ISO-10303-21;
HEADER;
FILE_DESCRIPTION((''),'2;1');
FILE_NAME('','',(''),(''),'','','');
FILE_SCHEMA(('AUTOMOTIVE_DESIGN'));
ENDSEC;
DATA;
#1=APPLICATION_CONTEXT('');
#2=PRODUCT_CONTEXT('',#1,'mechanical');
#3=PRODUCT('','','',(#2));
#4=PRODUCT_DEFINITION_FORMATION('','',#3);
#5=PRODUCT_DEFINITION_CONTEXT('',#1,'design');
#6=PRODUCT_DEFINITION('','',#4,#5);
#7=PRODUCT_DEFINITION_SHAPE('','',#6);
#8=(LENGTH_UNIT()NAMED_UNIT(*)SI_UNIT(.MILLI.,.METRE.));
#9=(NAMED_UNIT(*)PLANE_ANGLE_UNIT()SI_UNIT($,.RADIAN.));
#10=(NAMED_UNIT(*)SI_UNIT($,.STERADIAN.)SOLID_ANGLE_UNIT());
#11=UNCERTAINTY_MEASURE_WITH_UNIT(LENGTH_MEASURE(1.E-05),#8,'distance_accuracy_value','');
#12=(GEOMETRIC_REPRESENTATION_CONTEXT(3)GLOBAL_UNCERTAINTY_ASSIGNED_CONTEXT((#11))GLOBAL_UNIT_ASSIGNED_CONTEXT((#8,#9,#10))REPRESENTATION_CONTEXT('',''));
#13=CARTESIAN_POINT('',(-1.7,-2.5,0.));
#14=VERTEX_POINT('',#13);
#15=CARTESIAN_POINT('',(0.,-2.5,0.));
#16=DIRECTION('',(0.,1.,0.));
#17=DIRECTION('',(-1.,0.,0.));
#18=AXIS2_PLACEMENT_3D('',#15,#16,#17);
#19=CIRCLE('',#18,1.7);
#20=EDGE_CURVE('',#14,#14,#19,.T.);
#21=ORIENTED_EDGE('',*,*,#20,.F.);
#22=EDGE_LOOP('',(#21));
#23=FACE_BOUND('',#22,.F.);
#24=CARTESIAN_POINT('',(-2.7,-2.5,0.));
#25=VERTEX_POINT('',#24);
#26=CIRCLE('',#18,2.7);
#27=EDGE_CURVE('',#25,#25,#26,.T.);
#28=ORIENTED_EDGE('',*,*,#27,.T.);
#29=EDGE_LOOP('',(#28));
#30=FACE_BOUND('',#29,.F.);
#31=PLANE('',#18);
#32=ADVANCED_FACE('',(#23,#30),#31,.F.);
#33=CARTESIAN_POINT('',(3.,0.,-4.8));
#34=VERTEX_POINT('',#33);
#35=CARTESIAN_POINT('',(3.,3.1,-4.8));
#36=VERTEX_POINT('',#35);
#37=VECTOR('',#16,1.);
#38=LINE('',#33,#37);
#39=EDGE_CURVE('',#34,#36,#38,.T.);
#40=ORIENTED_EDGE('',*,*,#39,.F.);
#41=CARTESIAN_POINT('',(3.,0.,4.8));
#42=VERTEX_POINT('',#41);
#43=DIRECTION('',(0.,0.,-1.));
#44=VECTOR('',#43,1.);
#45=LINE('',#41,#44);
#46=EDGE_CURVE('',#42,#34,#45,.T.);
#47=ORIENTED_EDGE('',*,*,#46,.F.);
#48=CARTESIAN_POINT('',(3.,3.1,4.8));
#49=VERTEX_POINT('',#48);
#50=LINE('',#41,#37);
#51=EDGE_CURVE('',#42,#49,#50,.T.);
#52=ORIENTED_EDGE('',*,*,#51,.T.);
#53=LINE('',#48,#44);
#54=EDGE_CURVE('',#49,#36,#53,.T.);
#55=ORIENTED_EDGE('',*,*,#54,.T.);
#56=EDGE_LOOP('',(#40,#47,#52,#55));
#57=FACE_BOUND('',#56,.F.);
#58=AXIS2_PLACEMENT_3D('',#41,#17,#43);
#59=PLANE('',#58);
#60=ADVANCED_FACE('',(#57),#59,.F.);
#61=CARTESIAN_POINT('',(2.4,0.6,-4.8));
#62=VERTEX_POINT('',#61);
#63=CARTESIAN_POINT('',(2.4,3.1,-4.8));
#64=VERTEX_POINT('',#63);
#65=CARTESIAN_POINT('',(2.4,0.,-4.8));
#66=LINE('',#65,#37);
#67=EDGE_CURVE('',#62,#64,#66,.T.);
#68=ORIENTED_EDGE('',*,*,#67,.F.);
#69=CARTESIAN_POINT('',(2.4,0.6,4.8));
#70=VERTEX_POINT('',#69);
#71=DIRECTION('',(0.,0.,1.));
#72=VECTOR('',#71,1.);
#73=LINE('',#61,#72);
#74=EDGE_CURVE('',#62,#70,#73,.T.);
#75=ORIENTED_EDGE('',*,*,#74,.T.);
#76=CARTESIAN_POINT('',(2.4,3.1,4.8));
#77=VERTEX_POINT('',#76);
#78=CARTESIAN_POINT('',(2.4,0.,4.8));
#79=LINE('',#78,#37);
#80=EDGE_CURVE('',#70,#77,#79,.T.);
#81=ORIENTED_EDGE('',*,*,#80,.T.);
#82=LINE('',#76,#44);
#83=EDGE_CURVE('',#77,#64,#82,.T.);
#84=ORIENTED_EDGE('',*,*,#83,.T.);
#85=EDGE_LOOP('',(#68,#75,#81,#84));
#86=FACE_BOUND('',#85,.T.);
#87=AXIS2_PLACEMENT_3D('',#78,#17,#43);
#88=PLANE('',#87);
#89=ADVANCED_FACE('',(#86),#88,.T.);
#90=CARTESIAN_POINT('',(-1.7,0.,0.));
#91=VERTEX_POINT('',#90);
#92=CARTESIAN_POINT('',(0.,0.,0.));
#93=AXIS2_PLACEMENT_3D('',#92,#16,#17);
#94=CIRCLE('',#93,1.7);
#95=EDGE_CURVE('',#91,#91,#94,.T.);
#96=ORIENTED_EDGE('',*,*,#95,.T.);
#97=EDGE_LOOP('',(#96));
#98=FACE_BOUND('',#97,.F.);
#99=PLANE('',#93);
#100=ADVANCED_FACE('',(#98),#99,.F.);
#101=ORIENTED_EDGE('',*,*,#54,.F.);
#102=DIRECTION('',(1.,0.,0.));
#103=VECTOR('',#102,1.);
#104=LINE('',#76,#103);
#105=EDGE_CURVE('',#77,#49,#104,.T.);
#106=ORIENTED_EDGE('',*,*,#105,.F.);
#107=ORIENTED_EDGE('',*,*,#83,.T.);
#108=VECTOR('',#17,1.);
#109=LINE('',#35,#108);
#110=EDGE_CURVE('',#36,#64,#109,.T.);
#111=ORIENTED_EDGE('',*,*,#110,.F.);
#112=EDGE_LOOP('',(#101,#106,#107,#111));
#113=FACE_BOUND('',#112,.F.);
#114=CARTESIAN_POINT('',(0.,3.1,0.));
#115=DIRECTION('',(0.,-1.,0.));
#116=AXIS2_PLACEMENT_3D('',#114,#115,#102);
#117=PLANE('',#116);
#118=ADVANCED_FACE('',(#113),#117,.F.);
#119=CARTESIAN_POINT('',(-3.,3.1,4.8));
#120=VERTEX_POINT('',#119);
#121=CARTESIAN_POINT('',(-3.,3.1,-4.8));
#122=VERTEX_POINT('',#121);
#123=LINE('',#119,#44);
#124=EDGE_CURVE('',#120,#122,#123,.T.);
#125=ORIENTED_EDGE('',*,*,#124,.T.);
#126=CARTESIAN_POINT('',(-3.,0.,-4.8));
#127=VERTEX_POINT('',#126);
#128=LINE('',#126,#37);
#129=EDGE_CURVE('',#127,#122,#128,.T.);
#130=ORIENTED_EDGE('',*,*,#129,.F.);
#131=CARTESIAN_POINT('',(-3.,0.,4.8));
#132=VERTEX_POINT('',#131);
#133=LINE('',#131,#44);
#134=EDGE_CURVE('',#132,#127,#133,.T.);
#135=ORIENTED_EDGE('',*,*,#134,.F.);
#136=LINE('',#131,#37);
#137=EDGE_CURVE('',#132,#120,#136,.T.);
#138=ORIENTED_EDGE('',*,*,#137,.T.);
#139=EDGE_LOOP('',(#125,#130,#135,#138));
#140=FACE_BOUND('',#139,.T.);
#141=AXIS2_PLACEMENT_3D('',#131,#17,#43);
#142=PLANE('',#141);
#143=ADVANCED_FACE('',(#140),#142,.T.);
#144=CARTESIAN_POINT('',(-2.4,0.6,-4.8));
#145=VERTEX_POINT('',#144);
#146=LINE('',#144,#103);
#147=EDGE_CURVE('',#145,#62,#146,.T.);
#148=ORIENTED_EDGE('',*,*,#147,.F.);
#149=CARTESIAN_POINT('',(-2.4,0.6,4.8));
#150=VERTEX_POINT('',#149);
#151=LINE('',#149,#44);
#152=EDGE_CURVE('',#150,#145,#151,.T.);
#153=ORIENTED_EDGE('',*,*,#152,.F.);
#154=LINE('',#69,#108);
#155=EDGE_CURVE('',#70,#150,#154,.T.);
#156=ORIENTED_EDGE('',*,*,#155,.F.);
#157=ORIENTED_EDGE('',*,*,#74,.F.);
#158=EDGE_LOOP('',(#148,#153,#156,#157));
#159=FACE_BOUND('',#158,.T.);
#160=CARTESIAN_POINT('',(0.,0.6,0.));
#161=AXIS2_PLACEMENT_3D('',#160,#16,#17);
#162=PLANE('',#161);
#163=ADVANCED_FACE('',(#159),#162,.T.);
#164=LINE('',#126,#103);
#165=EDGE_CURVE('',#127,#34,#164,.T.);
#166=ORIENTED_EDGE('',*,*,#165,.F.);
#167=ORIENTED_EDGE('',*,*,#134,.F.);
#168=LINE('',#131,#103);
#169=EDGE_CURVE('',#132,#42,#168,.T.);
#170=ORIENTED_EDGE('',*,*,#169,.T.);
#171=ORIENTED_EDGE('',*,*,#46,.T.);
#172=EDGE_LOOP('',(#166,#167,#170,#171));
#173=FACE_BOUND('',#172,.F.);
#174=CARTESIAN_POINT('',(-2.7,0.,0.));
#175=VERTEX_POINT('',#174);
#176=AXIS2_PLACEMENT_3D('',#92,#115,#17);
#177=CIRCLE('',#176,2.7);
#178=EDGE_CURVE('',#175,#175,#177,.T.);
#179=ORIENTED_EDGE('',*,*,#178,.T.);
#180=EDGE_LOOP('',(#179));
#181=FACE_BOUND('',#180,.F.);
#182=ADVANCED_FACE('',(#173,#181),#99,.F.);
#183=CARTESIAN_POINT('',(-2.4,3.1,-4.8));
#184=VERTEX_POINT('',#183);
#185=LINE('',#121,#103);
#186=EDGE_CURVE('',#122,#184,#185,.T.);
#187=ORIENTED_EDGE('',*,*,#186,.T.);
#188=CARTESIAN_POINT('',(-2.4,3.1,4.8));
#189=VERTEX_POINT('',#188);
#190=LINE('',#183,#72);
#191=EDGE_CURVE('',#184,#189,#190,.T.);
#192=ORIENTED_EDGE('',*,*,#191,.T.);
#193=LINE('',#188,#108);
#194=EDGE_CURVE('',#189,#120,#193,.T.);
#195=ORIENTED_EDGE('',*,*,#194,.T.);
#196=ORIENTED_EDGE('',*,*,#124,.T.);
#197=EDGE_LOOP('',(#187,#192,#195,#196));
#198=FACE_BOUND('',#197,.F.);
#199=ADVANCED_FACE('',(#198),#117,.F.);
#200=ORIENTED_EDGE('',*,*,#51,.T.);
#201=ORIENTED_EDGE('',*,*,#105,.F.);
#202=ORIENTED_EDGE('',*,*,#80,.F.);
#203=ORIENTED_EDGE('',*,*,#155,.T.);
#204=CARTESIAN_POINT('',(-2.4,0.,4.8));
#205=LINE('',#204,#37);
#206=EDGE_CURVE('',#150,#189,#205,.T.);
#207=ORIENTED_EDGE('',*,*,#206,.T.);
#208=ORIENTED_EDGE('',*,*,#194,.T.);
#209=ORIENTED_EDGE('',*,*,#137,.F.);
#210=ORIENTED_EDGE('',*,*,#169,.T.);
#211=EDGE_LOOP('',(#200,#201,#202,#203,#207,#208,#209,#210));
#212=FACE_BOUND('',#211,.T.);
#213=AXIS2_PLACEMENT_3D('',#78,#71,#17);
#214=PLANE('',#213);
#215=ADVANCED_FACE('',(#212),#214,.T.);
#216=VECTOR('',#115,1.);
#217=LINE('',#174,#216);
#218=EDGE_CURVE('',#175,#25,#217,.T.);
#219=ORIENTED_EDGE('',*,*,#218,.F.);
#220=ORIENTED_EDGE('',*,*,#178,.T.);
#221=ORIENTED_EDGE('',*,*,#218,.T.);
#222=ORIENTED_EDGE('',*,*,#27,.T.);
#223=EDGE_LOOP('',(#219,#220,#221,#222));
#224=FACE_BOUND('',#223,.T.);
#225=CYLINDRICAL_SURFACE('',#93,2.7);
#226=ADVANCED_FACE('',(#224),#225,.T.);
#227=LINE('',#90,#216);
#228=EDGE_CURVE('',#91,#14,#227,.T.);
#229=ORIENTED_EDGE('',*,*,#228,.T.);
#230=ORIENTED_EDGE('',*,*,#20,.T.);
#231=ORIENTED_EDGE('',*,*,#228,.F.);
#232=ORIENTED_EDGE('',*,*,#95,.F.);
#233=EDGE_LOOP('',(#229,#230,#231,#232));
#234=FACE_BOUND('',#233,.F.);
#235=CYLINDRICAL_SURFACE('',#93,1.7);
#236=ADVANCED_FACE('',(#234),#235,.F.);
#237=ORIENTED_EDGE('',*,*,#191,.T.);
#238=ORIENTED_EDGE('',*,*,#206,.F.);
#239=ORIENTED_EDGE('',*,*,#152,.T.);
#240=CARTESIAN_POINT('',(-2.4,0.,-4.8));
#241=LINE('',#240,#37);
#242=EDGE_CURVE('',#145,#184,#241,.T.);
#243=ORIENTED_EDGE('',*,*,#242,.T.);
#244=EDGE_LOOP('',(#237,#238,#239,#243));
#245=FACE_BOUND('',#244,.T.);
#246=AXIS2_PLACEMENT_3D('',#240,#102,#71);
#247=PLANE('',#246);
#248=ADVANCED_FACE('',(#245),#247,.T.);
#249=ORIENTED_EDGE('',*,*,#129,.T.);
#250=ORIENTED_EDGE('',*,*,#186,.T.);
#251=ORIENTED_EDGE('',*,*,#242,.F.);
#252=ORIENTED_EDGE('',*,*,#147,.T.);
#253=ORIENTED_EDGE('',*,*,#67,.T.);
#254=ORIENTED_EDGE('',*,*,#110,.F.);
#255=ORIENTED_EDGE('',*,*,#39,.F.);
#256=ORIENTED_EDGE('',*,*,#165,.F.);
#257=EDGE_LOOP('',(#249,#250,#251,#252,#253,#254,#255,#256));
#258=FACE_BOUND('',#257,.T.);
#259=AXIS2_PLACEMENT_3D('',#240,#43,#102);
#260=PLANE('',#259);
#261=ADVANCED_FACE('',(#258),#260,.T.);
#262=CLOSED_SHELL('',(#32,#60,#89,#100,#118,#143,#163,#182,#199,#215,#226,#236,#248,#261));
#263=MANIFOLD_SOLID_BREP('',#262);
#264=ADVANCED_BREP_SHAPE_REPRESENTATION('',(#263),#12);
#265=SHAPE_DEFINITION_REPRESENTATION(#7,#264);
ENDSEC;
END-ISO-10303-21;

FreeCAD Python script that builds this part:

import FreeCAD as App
import Part
import Sketcher
Q = App.Units.Quantity

doc = App.newDocument("Part")
body = doc.addObject("PartDesign::Body", "Body")

sketch1 = doc.addObject("Sketcher::SketchObject", "Sketch")
body.addObject(sketch1)
sketch1.AttachmentSupport = (doc.XZ_Plane, [""])
sketch1.MapMode = "FlatFace"
sketch1.addGeometry(Part.LineSegment(App.Vector(-2.4, 4.8, 0), App.Vector(2.4, 4.8, 0)), False)
sketch1.addGeometry(Part.LineSegment(App.Vector(2.4, 4.8, 0), App.Vector(2.4, -4.8, 0)), False)
sketch1.addGeometry(Part.LineSegment(App.Vector(2.4, -4.8, 0), App.Vector(-2.4, -4.8, 0)), False)
sketch1.addGeometry(Part.LineSegment(App.Vector(-2.4, -4.8, 0), App.Vector(-2.4, 4.8, 0)), False)
sketch1.addConstraint(Sketcher.Constraint("Coincident", 0, 2, 1, 1))
sketch1.addConstraint(Sketcher.Constraint("Coincident", 1, 2, 2, 1))
sketch1.addConstraint(Sketcher.Constraint("Coincident", 2, 2, 3, 1))
sketch1.addConstraint(Sketcher.Constraint("Coincident", 3, 2, 0, 1))
sketch1.addConstraint(Sketcher.Constraint("Horizontal", 0))
sketch1.addConstraint(Sketcher.Constraint("Vertical", 1))
sketch1.addConstraint(Sketcher.Constraint("Horizontal", 2))
sketch1.addConstraint(Sketcher.Constraint("Vertical", 3))
sketch1.addConstraint(Sketcher.Constraint("Symmetric", 0, 2, 2, 2, -1, 1))
sketch1.addConstraint(Sketcher.Constraint("DistanceX", 0, 1, 0, 2, Q("4.8 mm")))
sketch1.addConstraint(Sketcher.Constraint("DistanceY", 1, 2, 1, 1, Q("9.6 mm")))
pad1 = doc.addObject("PartDesign::Pad", "Pad")
body.addObject(pad1)
pad1.Profile = sketch1
pad1.Length = 0.6
pad1.Reversed = True

sketch2 = doc.addObject("Sketcher::SketchObject", "Sketch001")
body.addObject(sketch2)
sketch2.AttachmentSupport = (doc.XZ_Plane, [""])
sketch2.MapMode = "FlatFace"
sketch2.addGeometry(Part.LineSegment(App.Vector(2.4, 4.8, 0), App.Vector(2.4, -4.8, 0)), False)
sketch2.addGeometry(Part.LineSegment(App.Vector(2.4, -4.8, 0), App.Vector(3, -4.8, 0)), False)
sketch2.addGeometry(Part.LineSegment(App.Vector(3, -4.8, 0), App.Vector(3, 4.8, 0)), False)
sketch2.addGeometry(Part.LineSegment(App.Vector(3, 4.8, 0), App.Vector(2.4, 4.8, 0)), False)
sketch2.addGeometry(Part.LineSegment(App.Vector(-3, -4.8, 0), App.Vector(-2.4, -4.8, 0)), False)
sketch2.addGeometry(Part.LineSegment(App.Vector(-2.4, -4.8, 0), App.Vector(-2.4, 4.8, 0)), False)
sketch2.addGeometry(Part.LineSegment(App.Vector(-2.4, 4.8, 0), App.Vector(-3, 4.8, 0)), False)
sketch2.addGeometry(Part.LineSegment(App.Vector(-3, 4.8, 0), App.Vector(-3, -4.8, 0)), False)
sketch2.addConstraint(Sketcher.Constraint("Coincident", 0, 2, 1, 1))
sketch2.addConstraint(Sketcher.Constraint("Coincident", 1, 2, 2, 1))
sketch2.addConstraint(Sketcher.Constraint("Coincident", 2, 2, 3, 1))
sketch2.addConstraint(Sketcher.Constraint("Coincident", 3, 2, 0, 1))
sketch2.addConstraint(Sketcher.Constraint("Coincident", 4, 2, 5, 1))
sketch2.addConstraint(Sketcher.Constraint("Coincident", 5, 2, 6, 1))
sketch2.addConstraint(Sketcher.Constraint("Coincident", 6, 2, 7, 1))
sketch2.addConstraint(Sketcher.Constraint("Coincident", 7, 2, 4, 1))
sketch2.addConstraint(Sketcher.Constraint("Vertical", 0))
sketch2.addConstraint(Sketcher.Constraint("Horizontal", 1))
sketch2.addConstraint(Sketcher.Constraint("Vertical", 2))
sketch2.addConstraint(Sketcher.Constraint("Horizontal", 3))
sketch2.addConstraint(Sketcher.Constraint("Horizontal", 4))
sketch2.addConstraint(Sketcher.Constraint("Vertical", 5))
sketch2.addConstraint(Sketcher.Constraint("Horizontal", 6))
sketch2.addConstraint(Sketcher.Constraint("Vertical", 7))
sketch2.addConstraint(Sketcher.Constraint("Symmetric", 3, 2, 4, 2, -1, 1))
sketch2.addConstraint(Sketcher.Constraint("Symmetric", 1, 2, 6, 2, -1, 1))
sketch2.addConstraint(Sketcher.Constraint("Horizontal", 1, 2, 4, 2))
sketch2.addConstraint(Sketcher.Constraint("DistanceX", 1, 1, 1, 2, Q("0.6 mm")))
sketch2.addConstraint(Sketcher.Constraint("DistanceY", 0, 2, 0, 1, Q("9.6 mm")))
sketch2.addConstraint(Sketcher.Constraint("DistanceX", -1, 1, 1, 2, Q("3 mm")))
pad2 = doc.addObject("PartDesign::Pad", "Pad001")
body.addObject(pad2)
pad2.Profile = sketch2
pad2.Length = 3.1
pad2.Reversed = True

sketch3 = doc.addObject("Sketcher::SketchObject", "Sketch002")
body.addObject(sketch3)
sketch3.AttachmentSupport = (doc.XZ_Plane, [""])
sketch3.MapMode = "FlatFace"
sketch3.addGeometry(Part.Circle(App.Vector(0, 0, 0), App.Vector(0, 0, 1), 2.7), False)
sketch3.addGeometry(Part.Circle(App.Vector(0, 0, 0), App.Vector(0, 0, 1), 1.7), False)
sketch3.addConstraint(Sketcher.Constraint("Coincident", 0, 3, -1, 1))
sketch3.addConstraint(Sketcher.Constraint("Coincident", 1, 3, -1, 1))
sketch3.addConstraint(Sketcher.Constraint("Diameter", 0, Q("5.4 mm")))
sketch3.addConstraint(Sketcher.Constraint("Diameter", 1, Q("3.4 mm")))
pad3 = doc.addObject("PartDesign::Pad", "Pad002")
body.addObject(pad3)
pad3.Profile = sketch3
pad3.Length = 2.5

doc.recompute()
